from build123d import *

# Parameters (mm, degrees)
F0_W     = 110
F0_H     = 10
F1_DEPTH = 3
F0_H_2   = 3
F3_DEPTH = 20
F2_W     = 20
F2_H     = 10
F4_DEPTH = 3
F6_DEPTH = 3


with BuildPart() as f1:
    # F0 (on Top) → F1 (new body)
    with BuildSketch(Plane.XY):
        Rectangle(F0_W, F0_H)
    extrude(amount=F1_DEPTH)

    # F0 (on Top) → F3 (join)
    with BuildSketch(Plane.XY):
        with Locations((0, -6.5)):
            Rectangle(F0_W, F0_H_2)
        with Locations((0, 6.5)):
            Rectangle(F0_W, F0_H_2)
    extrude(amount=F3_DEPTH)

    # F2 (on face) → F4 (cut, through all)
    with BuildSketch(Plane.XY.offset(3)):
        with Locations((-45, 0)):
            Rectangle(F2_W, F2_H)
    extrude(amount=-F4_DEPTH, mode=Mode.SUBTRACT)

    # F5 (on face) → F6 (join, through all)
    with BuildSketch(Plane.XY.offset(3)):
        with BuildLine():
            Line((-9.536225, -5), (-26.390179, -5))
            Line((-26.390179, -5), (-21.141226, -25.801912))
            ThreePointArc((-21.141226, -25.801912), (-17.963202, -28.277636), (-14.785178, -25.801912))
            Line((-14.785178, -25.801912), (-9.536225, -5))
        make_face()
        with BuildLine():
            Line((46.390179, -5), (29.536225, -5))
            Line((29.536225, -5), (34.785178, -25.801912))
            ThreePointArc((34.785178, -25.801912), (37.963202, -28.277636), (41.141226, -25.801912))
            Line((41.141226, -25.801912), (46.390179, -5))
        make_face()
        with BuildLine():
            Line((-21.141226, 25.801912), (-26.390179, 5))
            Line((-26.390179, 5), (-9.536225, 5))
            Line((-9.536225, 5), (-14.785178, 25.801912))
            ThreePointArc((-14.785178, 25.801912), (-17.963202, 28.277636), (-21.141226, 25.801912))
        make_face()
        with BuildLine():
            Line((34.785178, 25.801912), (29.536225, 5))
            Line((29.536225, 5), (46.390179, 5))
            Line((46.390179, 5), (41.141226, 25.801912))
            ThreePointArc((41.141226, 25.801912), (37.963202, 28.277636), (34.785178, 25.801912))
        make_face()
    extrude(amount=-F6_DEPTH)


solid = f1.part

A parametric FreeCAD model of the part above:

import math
import FreeCAD as App
import Part
import Sketcher
from FreeCAD import Vector
Q = App.Units.Quantity


def add_polygon(sketch, points):
    """Adds a closed chain of lines whose ends are joined by coincident constraints."""
    first, n = sketch.GeometryCount, len(points)
    for a, b in zip(points, points[1:] + points[:1]):
        sketch.addGeometry(Part.LineSegment(App.Vector(*a, 0), App.Vector(*b, 0)), False)
    for i in range(n):
        sketch.addConstraint(Sketcher.Constraint("Coincident", first + i, 2, first + (i + 1) % n, 1))

doc = App.newDocument("Part")
body = doc.addObject("PartDesign::Body", "Body")

# Sketch on XY plane
sketch1 = body.newObject("Sketcher::SketchObject", "Sketch")
sketch1.AttachmentSupport = (doc.getObject("XY_Plane"), [""])
sketch1.MapMode = "FlatFace"
add_polygon(sketch1, [(-55, 5), (-55, -5), (55, -5), (55, 5)])  # lines 0-3
sketch1.addConstraint([
    Sketcher.Constraint("Vertical", 0),
    Sketcher.Constraint("Horizontal", 1),
    Sketcher.Constraint("Vertical", 2),
    Sketcher.Constraint("Horizontal", 3),
    Sketcher.Constraint("Symmetric", 0, 2, 2, 2, -1, 1),
    Sketcher.Constraint("DistanceX", 1, 1, 1, 2, Q("110 mm")),
    Sketcher.Constraint("DistanceY", 0, 2, 0, 1, Q("10 mm")),
])
pad1 = body.newObject("PartDesign::Pad", "Pad")
pad1.Profile = sketch1
pad1.Length = 3

# Sketch on XY plane
sketch2 = body.newObject("Sketcher::SketchObject", "Sketch001")
sketch2.AttachmentSupport = (doc.getObject("XY_Plane"), [""])
sketch2.MapMode = "FlatFace"
add_polygon(sketch2, [(-55, -5), (-55, -8), (55, -8), (55, -5)])  # lines 0-3
add_polygon(sketch2, [(-55, 8), (-55, 5), (55, 5), (55, 8)])  # lines 4-7
sketch2.addConstraint([
    Sketcher.Constraint("Vertical", 0),
    Sketcher.Constraint("Horizontal", 1),
    Sketcher.Constraint("Vertical", 2),
    Sketcher.Constraint("Horizontal", 3),
    Sketcher.Constraint("Vertical", 4),
    Sketcher.Constraint("Horizontal", 5),
    Sketcher.Constraint("Vertical", 6),
    Sketcher.Constraint("Horizontal", 7),
    Sketcher.Constraint("Symmetric", 2, 2, 4, 2, -1, 1),
    Sketcher.Constraint("Symmetric", 0, 2, 6, 2, -1, 1),
    Sketcher.Constraint("Vertical", 3, 2, 4, 2),
    Sketcher.Constraint("DistanceX", 1, 1, 1, 2, Q("110 mm")),
    Sketcher.Constraint("DistanceY", 0, 2, 0, 1, Q("3 mm")),
    Sketcher.Constraint("DistanceY", 0, 2, -1, 1, Q("8 mm")),
])
pad2 = body.newObject("PartDesign::Pad", "Pad001")
pad2.Profile = sketch2
pad2.Length = 20

# Sketch on XY plane
sketch3 = body.newObject("Sketcher::SketchObject", "Sketch002")
sketch3.AttachmentSupport = (doc.getObject("XY_Plane"), [""])
sketch3.MapMode = "FlatFace"
sketch3.AttachmentOffset = App.Placement(Vector(0, 0, 3), App.Rotation())
add_polygon(sketch3, [(-55, 5), (-55, -5), (-35, -5), (-35, 5)])  # lines 0-3
sketch3.addConstraint([
    Sketcher.Constraint("Vertical", 0),
    Sketcher.Constraint("Horizontal", 1),
    Sketcher.Constraint("Vertical", 2),
    Sketcher.Constraint("Horizontal", 3),
    Sketcher.Constraint("DistanceX", 1, 1, 1, 2, Q("20 mm")),
    Sketcher.Constraint("DistanceY", 0, 2, 0, 1, Q("10 mm")),
    Sketcher.Constraint("DistanceX", 0, 2, -1, 1, Q("55 mm")),
    Sketcher.Constraint("DistanceY", 0, 2, -1, 1, Q("5 mm")),
])
pocket1 = body.newObject("PartDesign::Pocket", "Pocket")
pocket1.Profile = sketch3
pocket1.Type = "ThroughAll"

# Sketch on XY plane
sketch4 = body.newObject("Sketcher::SketchObject", "Sketch003")
sketch4.AttachmentSupport = (doc.getObject("XY_Plane"), [""])
sketch4.MapMode = "FlatFace"
sketch4.AttachmentOffset = App.Placement(Vector(0, 0, 3), App.Rotation())
sketch4.addGeometry([
    Part.LineSegment(Vector(-9.5, -5, 0), Vector(-26.4, -5, 0)),  # 0
    Part.LineSegment(Vector(-26.4, -5, 0), Vector(-21.1, -25.8, 0)),  # 1
    Part.ArcOfCircle(Part.Circle(Vector(-18, -25, 0), Vector(0, 0, 1), 3.3), math.radians(-166), math.radians(-14)),  # 2
    Part.LineSegment(Vector(-14.8, -25.8, 0), Vector(-9.5, -5, 0)),  # 3
    Part.LineSegment(Vector(46.4, -5, 0), Vector(29.5, -5, 0)),  # 4
    Part.LineSegment(Vector(29.5, -5, 0), Vector(34.8, -25.8, 0)),  # 5
    Part.ArcOfCircle(Part.Circle(Vector(38, -25, 0), Vector(0, 0, 1), 3.3), math.radians(-166), math.radians(-14)),  # 6
    Part.LineSegment(Vector(41.1, -25.8, 0), Vector(46.4, -5, 0)),  # 7
    Part.LineSegment(Vector(-21.1, 25.8, 0), Vector(-26.4, 5, 0)),  # 8
    Part.LineSegment(Vector(-26.4, 5, 0), Vector(-9.5, 5, 0)),  # 9
    Part.LineSegment(Vector(-9.5, 5, 0), Vector(-14.8, 25.8, 0)),  # 10
    Part.ArcOfCircle(Part.Circle(Vector(-18, 25, 0), Vector(0, 0, 1), 3.3), math.radians(14), math.radians(166)),  # 11
    Part.LineSegment(Vector(34.8, 25.8, 0), Vector(29.5, 5, 0)),  # 12
    Part.LineSegment(Vector(29.5, 5, 0), Vector(46.4, 5, 0)),  # 13
    Part.LineSegment(Vector(46.4, 5, 0), Vector(41.1, 25.8, 0)),  # 14
    Part.ArcOfCircle(Part.Circle(Vector(38, 25, 0), Vector(0, 0, 1), 3.3), math.radians(14), math.radians(166)),  # 15
], False)
sketch4.addConstraint([
    Sketcher.Constraint("Coincident", 0, 2, 1, 1),
    Sketcher.Constraint("Tangent", 1, 2, 2, 1),
    Sketcher.Constraint("Tangent", 2, 2, 3, 1),
    Sketcher.Constraint("Coincident", 3, 2, 0, 1),
    Sketcher.Constraint("Coincident", 4, 2, 5, 1),
    Sketcher.Constraint("Tangent", 5, 2, 6, 1),
    Sketcher.Constraint("Tangent", 6, 2, 7, 1),
    Sketcher.Constraint("Coincident", 7, 2, 4, 1),
    Sketcher.Constraint("Coincident", 8, 2, 9, 1),
    Sketcher.Constraint("Coincident", 9, 2, 10, 1),
    Sketcher.Constraint("Tangent", 10, 2, 11, 1),
    Sketcher.Constraint("Tangent", 11, 2, 8, 1),
    Sketcher.Constraint("Coincident", 12, 2, 13, 1),
    Sketcher.Constraint("Coincident", 13, 2, 14, 1),
    Sketcher.Constraint("Tangent", 14, 2, 15, 1),
    Sketcher.Constraint("Tangent", 15, 2, 12, 1),
    Sketcher.Constraint("Horizontal", 0),
    Sketcher.Constraint("Horizontal", 4),
    Sketcher.Constraint("Horizontal", 9),
    Sketcher.Constraint("Horizontal", 13),
    Sketcher.Constraint("Equal", 2, 6),
    Sketcher.Constraint("Equal", 6, 11),
    Sketcher.Constraint("Equal", 11, 15),
    Sketcher.Constraint("Symmetric", 2, 3, 11, 3, -1),
    Sketcher.Constraint("Symmetric", 6, 3, 15, 3, -1),
    Sketcher.Constraint("Symmetric", 0, 2, 8, 2, -1),
    Sketcher.Constraint("Symmetric", 4, 2, 12, 2, -1),
    Sketcher.Constraint("Parallel", 1, 5),
    Sketcher.Constraint("Parallel", 3, 7),
    Sketcher.Constraint("Parallel", 7, 8),
    Sketcher.Constraint("Parallel", 5, 10),
    Sketcher.Constraint("Parallel", 10, 14),
    Sketcher.Constraint("Horizontal", 2, 3, 6, 3),
    Sketcher.Constraint("Horizontal", 3, 2, 4, 2),
    Sketcher.Constraint("DistanceY", 2, 3, -1, 1, Q("25 mm")),
    Sketcher.Constraint("DistanceY", 0, 2, -1, 1, Q("5 mm")),
    Sketcher.Constraint("Radius", 2, Q("3.277636 mm")),
    Sketcher.Constraint("DistanceX", 0, 2, 2, 2, Q("11.605001 mm")),
    Sketcher.Constraint("DistanceX", 2, 3, -1, 1, Q("17.963202 mm")),
    Sketcher.Constraint("DistanceX", -1, 1, 5, 2, Q("34.785178 mm")),
])
pad3 = body.newObject("PartDesign::Pad", "Pad002")
pad3.Profile = sketch4
pad3.Type = "UpToLast"
pad3.Reversed = True

doc.recompute()
